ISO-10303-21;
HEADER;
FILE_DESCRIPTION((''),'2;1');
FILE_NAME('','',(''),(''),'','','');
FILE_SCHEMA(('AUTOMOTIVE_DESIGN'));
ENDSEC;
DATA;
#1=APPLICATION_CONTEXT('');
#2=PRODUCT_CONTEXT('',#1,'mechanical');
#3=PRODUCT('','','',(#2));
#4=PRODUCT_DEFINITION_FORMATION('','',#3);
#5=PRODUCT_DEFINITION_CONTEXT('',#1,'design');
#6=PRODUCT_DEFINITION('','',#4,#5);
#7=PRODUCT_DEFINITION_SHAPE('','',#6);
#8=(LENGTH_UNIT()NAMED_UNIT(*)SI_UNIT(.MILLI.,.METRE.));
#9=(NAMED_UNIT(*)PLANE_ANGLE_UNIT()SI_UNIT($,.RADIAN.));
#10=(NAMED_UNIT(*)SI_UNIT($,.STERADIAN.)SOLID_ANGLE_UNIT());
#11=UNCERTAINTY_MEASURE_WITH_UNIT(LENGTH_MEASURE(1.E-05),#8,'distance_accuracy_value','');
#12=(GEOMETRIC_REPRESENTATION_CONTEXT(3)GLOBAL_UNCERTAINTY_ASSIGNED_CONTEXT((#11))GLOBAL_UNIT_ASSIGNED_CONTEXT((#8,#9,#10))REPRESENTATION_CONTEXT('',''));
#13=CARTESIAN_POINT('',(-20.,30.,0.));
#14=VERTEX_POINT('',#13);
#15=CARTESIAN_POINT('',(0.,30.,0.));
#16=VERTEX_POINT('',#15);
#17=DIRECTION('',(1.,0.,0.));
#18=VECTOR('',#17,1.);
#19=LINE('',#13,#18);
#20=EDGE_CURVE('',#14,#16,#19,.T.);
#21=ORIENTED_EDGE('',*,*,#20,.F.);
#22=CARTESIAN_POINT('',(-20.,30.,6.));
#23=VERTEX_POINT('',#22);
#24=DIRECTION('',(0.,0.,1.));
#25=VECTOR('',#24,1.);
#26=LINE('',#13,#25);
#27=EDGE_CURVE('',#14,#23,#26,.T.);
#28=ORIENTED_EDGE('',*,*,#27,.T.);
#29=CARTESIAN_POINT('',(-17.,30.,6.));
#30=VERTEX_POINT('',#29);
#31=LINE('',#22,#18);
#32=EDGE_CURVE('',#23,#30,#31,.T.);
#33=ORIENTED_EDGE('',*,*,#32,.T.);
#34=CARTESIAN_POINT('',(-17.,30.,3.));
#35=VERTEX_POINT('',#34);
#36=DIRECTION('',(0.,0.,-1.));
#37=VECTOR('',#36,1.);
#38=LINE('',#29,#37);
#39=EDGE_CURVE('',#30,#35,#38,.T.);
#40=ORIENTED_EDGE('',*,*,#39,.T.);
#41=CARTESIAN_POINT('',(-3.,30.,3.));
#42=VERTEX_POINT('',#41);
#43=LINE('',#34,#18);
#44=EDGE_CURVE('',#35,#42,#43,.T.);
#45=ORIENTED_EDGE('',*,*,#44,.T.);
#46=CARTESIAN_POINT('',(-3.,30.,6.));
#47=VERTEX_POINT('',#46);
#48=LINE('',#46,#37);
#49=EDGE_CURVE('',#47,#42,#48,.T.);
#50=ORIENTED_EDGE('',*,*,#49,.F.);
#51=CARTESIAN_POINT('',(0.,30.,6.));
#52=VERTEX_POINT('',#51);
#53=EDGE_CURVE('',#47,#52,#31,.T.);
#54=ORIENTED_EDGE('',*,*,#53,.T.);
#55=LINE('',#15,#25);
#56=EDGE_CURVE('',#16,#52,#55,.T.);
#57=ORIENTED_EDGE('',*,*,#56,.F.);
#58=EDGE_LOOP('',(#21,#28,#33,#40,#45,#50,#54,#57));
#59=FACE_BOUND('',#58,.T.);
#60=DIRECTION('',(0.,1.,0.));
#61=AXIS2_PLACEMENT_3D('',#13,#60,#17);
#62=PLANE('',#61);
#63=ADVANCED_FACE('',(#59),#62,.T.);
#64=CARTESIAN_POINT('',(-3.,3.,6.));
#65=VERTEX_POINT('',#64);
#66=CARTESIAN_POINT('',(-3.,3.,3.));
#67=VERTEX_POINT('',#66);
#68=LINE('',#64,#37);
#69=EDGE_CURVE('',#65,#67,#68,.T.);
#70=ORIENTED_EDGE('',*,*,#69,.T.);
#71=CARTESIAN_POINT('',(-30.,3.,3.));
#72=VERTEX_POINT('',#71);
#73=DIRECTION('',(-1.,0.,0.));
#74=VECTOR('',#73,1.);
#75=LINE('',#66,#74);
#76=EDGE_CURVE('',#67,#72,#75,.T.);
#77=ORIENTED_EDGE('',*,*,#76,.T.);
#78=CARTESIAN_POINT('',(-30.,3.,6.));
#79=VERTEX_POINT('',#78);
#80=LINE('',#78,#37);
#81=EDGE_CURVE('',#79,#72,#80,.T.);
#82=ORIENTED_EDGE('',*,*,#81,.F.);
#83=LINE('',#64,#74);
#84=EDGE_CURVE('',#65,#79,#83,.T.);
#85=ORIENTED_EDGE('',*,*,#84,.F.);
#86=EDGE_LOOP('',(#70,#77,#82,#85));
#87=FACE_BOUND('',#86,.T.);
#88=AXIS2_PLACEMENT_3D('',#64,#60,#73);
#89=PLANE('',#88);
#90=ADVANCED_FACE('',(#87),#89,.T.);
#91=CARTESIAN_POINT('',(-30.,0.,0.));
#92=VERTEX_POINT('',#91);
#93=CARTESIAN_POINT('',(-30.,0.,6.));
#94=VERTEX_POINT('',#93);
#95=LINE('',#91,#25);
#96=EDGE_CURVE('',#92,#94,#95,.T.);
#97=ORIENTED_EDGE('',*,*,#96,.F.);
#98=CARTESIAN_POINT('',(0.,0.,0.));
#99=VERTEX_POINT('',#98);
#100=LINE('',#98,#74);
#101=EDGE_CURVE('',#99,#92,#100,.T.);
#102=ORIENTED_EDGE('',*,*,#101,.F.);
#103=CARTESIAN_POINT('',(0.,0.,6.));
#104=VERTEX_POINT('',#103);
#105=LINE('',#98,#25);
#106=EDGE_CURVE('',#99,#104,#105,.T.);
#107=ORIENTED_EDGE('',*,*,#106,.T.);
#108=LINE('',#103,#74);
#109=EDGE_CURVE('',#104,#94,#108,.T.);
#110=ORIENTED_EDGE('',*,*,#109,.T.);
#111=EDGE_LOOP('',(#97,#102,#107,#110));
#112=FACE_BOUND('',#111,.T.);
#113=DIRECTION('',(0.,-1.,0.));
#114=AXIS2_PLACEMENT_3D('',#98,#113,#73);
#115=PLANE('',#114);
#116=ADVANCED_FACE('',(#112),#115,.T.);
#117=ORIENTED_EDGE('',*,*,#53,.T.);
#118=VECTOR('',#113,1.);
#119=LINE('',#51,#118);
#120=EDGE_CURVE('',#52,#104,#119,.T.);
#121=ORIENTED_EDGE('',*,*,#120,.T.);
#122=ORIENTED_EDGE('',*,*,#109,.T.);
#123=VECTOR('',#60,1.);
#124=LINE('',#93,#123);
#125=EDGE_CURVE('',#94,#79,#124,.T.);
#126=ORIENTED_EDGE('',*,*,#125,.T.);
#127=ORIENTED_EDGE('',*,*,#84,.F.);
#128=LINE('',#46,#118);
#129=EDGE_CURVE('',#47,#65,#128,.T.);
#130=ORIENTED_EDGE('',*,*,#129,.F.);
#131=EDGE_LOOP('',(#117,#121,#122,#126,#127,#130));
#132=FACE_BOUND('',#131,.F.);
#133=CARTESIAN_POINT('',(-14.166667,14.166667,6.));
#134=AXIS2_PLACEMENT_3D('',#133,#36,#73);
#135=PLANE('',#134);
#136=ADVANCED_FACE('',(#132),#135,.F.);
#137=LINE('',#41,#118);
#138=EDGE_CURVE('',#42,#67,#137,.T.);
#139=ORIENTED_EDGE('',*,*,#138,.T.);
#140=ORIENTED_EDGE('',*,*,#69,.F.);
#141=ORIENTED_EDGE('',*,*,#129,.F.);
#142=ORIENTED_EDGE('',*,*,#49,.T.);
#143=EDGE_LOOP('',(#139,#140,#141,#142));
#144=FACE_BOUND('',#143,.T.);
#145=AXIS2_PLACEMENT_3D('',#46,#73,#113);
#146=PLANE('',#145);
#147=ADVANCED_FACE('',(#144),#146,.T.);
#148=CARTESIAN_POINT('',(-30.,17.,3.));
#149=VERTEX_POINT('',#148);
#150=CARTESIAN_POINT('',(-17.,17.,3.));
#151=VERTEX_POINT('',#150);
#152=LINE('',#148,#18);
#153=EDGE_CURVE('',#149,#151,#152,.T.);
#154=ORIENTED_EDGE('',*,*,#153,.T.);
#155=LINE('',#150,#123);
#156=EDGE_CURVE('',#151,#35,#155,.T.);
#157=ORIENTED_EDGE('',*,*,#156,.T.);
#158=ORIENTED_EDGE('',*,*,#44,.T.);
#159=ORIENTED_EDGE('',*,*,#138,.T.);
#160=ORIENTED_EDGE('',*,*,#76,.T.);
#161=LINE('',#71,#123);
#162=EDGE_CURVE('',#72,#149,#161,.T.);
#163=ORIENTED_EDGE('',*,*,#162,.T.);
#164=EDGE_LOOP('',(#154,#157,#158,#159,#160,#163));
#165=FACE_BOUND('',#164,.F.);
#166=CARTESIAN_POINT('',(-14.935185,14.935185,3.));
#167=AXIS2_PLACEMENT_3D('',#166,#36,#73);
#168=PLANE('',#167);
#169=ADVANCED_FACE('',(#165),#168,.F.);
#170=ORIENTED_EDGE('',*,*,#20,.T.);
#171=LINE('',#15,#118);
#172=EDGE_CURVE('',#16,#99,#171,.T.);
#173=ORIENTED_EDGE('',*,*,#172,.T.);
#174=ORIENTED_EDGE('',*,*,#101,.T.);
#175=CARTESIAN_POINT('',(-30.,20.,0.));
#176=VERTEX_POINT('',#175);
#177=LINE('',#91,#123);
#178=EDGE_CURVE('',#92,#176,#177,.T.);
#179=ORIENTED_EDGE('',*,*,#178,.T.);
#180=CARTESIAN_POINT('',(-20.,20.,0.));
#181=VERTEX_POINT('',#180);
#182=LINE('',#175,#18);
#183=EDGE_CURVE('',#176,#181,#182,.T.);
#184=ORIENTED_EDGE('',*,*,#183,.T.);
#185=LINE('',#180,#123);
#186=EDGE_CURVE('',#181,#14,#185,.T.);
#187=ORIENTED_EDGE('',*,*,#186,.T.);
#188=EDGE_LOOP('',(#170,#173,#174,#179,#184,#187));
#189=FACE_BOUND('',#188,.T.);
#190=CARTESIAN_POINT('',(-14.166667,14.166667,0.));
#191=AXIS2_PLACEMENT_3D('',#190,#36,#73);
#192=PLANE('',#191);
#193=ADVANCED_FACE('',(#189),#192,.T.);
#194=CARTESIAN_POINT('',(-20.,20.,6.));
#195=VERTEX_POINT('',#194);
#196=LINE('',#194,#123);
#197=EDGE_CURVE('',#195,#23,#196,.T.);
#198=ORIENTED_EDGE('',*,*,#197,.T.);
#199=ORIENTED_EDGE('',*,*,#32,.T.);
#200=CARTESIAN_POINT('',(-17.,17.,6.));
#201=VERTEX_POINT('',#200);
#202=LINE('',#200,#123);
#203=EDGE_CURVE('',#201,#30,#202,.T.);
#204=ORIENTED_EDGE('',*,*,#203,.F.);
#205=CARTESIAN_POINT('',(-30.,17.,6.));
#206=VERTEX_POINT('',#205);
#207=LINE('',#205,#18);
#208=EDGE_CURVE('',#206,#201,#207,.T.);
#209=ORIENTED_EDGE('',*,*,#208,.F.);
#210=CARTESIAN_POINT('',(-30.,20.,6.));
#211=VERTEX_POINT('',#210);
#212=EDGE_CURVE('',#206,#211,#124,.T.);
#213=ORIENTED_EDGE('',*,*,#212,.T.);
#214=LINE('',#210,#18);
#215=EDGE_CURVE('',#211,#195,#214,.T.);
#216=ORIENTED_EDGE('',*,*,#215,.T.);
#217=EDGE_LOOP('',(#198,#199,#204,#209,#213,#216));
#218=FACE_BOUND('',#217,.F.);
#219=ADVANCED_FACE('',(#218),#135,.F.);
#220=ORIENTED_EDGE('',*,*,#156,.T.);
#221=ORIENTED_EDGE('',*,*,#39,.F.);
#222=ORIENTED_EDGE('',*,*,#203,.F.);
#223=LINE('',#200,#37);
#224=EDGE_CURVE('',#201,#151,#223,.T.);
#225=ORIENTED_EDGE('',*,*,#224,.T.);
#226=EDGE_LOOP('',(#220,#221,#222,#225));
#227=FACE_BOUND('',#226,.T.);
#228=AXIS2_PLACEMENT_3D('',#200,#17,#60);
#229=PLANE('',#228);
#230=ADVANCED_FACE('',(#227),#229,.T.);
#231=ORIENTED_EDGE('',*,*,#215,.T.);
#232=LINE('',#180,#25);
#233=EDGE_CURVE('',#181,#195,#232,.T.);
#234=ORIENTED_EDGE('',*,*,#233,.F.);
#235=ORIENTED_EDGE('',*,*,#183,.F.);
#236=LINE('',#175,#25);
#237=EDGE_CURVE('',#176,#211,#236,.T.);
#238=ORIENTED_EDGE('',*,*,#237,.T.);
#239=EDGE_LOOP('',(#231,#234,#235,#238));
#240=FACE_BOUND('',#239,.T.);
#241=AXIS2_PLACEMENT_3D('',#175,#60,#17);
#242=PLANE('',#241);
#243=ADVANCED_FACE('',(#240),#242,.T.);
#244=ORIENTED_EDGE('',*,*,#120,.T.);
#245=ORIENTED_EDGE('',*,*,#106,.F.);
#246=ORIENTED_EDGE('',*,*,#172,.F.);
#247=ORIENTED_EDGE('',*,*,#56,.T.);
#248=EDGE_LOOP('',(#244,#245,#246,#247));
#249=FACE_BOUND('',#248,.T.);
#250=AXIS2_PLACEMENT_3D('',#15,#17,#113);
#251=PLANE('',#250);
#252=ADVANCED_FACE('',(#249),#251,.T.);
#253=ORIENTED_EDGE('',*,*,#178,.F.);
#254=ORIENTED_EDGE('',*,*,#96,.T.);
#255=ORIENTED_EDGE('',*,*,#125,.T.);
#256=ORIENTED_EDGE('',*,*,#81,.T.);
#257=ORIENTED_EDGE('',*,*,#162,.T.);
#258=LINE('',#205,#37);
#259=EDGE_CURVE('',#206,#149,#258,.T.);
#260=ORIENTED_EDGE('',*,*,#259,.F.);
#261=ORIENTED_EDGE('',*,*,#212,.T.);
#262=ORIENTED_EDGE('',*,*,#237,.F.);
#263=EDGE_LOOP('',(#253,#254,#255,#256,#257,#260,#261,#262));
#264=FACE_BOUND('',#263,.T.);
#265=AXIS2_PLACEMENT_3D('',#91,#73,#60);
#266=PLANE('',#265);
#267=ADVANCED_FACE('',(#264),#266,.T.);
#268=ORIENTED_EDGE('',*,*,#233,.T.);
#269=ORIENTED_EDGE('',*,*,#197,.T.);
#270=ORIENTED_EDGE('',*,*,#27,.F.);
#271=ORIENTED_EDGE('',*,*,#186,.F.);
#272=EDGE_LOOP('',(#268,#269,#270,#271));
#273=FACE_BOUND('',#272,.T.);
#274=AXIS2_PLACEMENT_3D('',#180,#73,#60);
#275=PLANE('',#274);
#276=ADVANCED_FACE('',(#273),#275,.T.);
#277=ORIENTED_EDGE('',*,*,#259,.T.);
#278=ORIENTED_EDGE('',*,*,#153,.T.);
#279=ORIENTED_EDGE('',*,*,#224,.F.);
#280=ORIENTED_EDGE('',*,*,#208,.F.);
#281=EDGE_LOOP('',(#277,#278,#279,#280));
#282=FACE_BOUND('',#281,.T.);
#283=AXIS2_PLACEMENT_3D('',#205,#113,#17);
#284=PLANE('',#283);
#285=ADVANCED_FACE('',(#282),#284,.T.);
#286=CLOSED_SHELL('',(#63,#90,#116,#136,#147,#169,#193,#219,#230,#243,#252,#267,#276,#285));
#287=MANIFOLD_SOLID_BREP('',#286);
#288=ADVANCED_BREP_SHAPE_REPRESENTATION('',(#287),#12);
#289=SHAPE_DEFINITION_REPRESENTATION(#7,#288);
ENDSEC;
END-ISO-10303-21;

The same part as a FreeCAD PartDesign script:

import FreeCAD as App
import Part
import Sketcher

V = App.Vector
Q = App.Units.Quantity


def add_polygon(sketch, points):
    """Adds a closed chain of lines whose ends are joined by coincident constraints."""
    first, n = sketch.GeometryCount, len(points)
    for a, b in zip(points, points[1:] + points[:1]):
        sketch.addGeometry(Part.LineSegment(App.Vector(*a, 0), App.Vector(*b, 0)), False)
    for i in range(n):
        sketch.addConstraint(Sketcher.Constraint("Coincident", first + i, 2, first + (i + 1) % n, 1))

doc = App.newDocument("Part")
params = doc.addObject("Spreadsheet::Sheet", "Params")
for row, (alias, value) in enumerate([
    ("sketch1_width", "20 mm"),
    ("sketch1_width2", "10 mm"),
    ("pad1_length", "6 mm"),
    ("sketch2_width", "14 mm"),
    ("sketch2_width2", "13 mm"),
    ("pocket1_length", "3 mm"),
], start=1):
    params.set(f"A{row}", alias)
    params.set(f"B{row}", "=" + value)
    params.setAlias(f"B{row}", alias)

body = doc.addObject("PartDesign::Body", "Body")

# Sketch on XY plane
sketch1 = body.newObject("Sketcher::SketchObject", "Sketch")
sketch1.AttachmentSupport = (doc.getObject("XY_Plane"), [""])
sketch1.MapMode = "FlatFace"
add_polygon(sketch1, [(0, 0), (0, 30), (-20, 30), (-20, 20), (-30, 20), (-30, 0)])  # lines 0-5
sketch1.addConstraint(Sketcher.Constraint("Vertical", 0))
sketch1.addConstraint(Sketcher.Constraint("Horizontal", 1))
sketch1.addConstraint(Sketcher.Constraint("Vertical", 2))
sketch1.addConstraint(Sketcher.Constraint("Horizontal", 3))
sketch1.addConstraint(Sketcher.Constraint("Vertical", 4))
sketch1.addConstraint(Sketcher.Constraint("Horizontal", 5))
sketch1.addConstraint(Sketcher.Constraint("Coincident", 5, 2, -1, 1))
sketch1.addConstraint(Sketcher.Constraint("Equal", 5, 0))
sketch1.addConstraint(Sketcher.Constraint("Equal", 3, 2))
sketch1.addConstraint(Sketcher.Constraint("DistanceX", 1, 2, 1, 1, Q("20 mm")))
sketch1.addConstraint(Sketcher.Constraint("DistanceX", 3, 2, 3, 1, Q("10 mm")))
sketch1.setExpression("Constraints[15]", "Params.sketch1_width")
sketch1.setExpression("Constraints[16]", "Params.sketch1_width2")
pad1 = body.newObject("PartDesign::Pad", "Pad")
pad1.Profile = sketch1
pad1.setExpression("Length", "Params.pad1_length")

# Sketch on XY plane
sketch2 = body.newObject("Sketcher::SketchObject", "Sketch001")
sketch2.AttachmentSupport = (doc.getObject("XY_Plane"), [""])
sketch2.MapMode = "FlatFace"
sketch2.AttachmentOffset = App.Placement(V(0, 0, 6), App.Rotation())
add_polygon(sketch2, [(-3, 30), (-17, 30), (-17, 17), (-30, 17), (-30, 3), (-3, 3)])  # lines 0-5
sketch2.addConstraint(Sketcher.Constraint("Horizontal", 0))
sketch2.addConstraint(Sketcher.Constraint("Vertical", 1))
sketch2.addConstraint(Sketcher.Constraint("Horizontal", 2))
sketch2.addConstraint(Sketcher.Constraint("Vertical", 3))
sketch2.addConstraint(Sketcher.Constraint("Horizontal", 4))
sketch2.addConstraint(Sketcher.Constraint("Vertical", 5))
sketch2.addConstraint(Sketcher.Constraint("Equal", 2, 1))
sketch2.addConstraint(Sketcher.Constraint("Equal", 0, 3))
sketch2.addConstraint(Sketcher.Constraint("DistanceX", 0, 2, 0, 1, Q("14 mm")))
sketch2.addConstraint(Sketcher.Constraint("DistanceX", 2, 2, 2, 1, Q("13 mm")))
sketch2.addConstraint(Sketcher.Constraint("DistanceX", 0, 2, -1, 1, Q("17 mm")))
sketch2.addConstraint(Sketcher.Constraint("DistanceY", -1, 1, 0, 2, Q("30 mm")))
sketch2.setExpression("Constraints[14]", "Params.sketch2_width")
sketch2.setExpression("Constraints[15]", "Params.sketch2_width2")
pocket1 = body.newObject("PartDesign::Pocket", "Pocket")
pocket1.Profile = sketch2
pocket1.setExpression("Length", "Params.pocket1_length")

doc.recompute()
